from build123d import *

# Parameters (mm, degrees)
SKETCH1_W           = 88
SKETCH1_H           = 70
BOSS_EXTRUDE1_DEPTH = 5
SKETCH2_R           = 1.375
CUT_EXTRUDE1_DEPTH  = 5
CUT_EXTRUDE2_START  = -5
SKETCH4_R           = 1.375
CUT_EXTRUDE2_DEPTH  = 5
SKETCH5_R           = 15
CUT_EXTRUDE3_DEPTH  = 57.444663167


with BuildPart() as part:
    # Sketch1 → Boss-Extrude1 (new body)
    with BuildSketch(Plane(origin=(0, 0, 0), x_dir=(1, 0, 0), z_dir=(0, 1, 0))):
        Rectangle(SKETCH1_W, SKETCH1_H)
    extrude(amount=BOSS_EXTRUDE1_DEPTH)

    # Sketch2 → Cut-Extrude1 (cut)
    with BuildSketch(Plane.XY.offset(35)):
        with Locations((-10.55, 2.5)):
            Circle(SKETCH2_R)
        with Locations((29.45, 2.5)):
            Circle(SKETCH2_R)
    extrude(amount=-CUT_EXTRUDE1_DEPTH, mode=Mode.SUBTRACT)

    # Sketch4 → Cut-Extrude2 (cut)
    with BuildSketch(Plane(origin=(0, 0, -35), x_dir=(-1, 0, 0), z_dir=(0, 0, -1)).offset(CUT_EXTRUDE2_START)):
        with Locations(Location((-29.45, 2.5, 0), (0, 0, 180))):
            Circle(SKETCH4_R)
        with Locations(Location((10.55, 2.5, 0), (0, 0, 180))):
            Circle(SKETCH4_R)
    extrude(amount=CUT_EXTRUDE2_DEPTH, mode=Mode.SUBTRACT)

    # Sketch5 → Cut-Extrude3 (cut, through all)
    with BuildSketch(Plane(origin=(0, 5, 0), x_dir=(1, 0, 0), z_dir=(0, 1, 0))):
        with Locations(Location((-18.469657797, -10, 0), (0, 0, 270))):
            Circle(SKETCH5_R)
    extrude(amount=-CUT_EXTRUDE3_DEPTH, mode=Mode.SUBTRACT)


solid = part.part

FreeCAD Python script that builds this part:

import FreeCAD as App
import Part
import Sketcher

V = App.Vector
Q = App.Units.Quantity


def add_polygon(sketch, points):
    """Adds a closed chain of lines whose ends are joined by coincident constraints."""
    first, n = sketch.GeometryCount, len(points)
    for a, b in zip(points, points[1:] + points[:1]):
        sketch.addGeometry(Part.LineSegment(App.Vector(*a, 0), App.Vector(*b, 0)), False)
    for i in range(n):
        sketch.addConstraint(Sketcher.Constraint("Coincident", first + i, 2, first + (i + 1) % n, 1))

doc = App.newDocument("Part")
body = doc.addObject("PartDesign::Body", "Body")

# Sketch on XZ plane
sketch1 = body.newObject("Sketcher::SketchObject", "Sketch")
sketch1.AttachmentSupport = (doc.getObject("XZ_Plane"), [""])
sketch1.MapMode = "FlatFace"
add_polygon(sketch1, [(-44, -35), (-44, 35), (44, 35), (44, -35)])  # lines 0-3
sketch1.addConstraint([
    Sketcher.Constraint("Vertical", 0),
    Sketcher.Constraint("Horizontal", 1),
    Sketcher.Constraint("Vertical", 2),
    Sketcher.Constraint("Horizontal", 3),
    Sketcher.Constraint("Symmetric", 0, 2, 2, 2, -1, 1),
    Sketcher.Constraint("DistanceX", 1, 1, 1, 2, Q("88 mm")),
    Sketcher.Constraint("DistanceY", 0, 1, 0, 2, Q("70 mm")),
])
pad1 = body.newObject("PartDesign::Pad", "Pad")
pad1.Profile = sketch1
pad1.Length = 5
pad1.Reversed = True

# Sketch on XY plane
sketch2 = body.newObject("Sketcher::SketchObject", "Sketch001")
sketch2.AttachmentSupport = (doc.getObject("XY_Plane"), [""])
sketch2.MapMode = "FlatFace"
sketch2.AttachmentOffset = App.Placement(V(0, 0, 35), App.Rotation())
sketch2.addGeometry([
    Part.Circle(V(-10.55, 2.5, 0), V(0, 0, 1), 1.375),
    Part.Circle(V(29.45, 2.5, 0), V(0, 0, 1), 1.375),
], False)
sketch2.addConstraint([
    Sketcher.Constraint("Equal", 0, 1),
    Sketcher.Constraint("Horizontal", 0, 3, 1, 3),
    Sketcher.Constraint("Diameter", 0, Q("2.75 mm")),
    Sketcher.Constraint("DistanceX", 0, 3, 1, 3, Q("40 mm")),
    Sketcher.Constraint("DistanceY", -1, 1, 0, 3, Q("2.5 mm")),
    Sketcher.Constraint("DistanceX", 0, 3, -1, 1, Q("10.55 mm")),
])
pocket1 = body.newObject("PartDesign::Pocket", "Pocket")
pocket1.Profile = sketch2
pocket1.Length = 5

# Sketch on XY plane
sketch3 = body.newObject("Sketcher::SketchObject", "Sketch002")
sketch3.AttachmentSupport = (doc.getObject("XY_Plane"), [""])
sketch3.MapMode = "FlatFace"
sketch3.AttachmentOffset = App.Placement(V(0, 0, -30), App.Rotation())
sketch3.addGeometry([
    Part.Circle(V(29.45, 2.5, 0), V(0, 0, 1), 1.375),
    Part.Circle(V(-10.55, 2.5, 0), V(0, 0, 1), 1.375),
], False)
sketch3.addConstraint([
    Sketcher.Constraint("Equal", 0, 1),
    Sketcher.Constraint("Horizontal", 0, 3, 1, 3),
    Sketcher.Constraint("Diameter", 0, Q("2.75 mm")),
    Sketcher.Constraint("DistanceX", 1, 3, 0, 3, Q("40 mm")),
    Sketcher.Constraint("DistanceY", -1, 1, 0, 3, Q("2.5 mm")),
    Sketcher.Constraint("DistanceX", -1, 1, 0, 3, Q("29.45 mm")),
])
pocket2 = body.newObject("PartDesign::Pocket", "Pocket001")
pocket2.Profile = sketch3
pocket2.Length = 5

# Sketch on XZ plane
sketch4 = body.newObject("Sketcher::SketchObject", "Sketch003")
sketch4.AttachmentSupport = (doc.getObject("XZ_Plane"), [""])
sketch4.MapMode = "FlatFace"
sketch4.AttachmentOffset = App.Placement(V(0, 0, -5), App.Rotation())
sketch4.addGeometry(Part.Circle(V(-18.469658, 10, 0), V(0, 0, 1), 15), False)
sketch4.addConstraint([
    Sketcher.Constraint("Diameter", 0, Q("30 mm")),
    Sketcher.Constraint("DistanceY", -1, 1, 0, 3, Q("10 mm")),
    Sketcher.Constraint("DistanceX", 0, 3, -1, 1, Q("18.469658 mm")),
])
pocket3 = body.newObject("PartDesign::Pocket", "Pocket002")
pocket3.Profile = sketch4
pocket3.Type = "ThroughAll"
pocket3.Reversed = True

doc.recompute()
